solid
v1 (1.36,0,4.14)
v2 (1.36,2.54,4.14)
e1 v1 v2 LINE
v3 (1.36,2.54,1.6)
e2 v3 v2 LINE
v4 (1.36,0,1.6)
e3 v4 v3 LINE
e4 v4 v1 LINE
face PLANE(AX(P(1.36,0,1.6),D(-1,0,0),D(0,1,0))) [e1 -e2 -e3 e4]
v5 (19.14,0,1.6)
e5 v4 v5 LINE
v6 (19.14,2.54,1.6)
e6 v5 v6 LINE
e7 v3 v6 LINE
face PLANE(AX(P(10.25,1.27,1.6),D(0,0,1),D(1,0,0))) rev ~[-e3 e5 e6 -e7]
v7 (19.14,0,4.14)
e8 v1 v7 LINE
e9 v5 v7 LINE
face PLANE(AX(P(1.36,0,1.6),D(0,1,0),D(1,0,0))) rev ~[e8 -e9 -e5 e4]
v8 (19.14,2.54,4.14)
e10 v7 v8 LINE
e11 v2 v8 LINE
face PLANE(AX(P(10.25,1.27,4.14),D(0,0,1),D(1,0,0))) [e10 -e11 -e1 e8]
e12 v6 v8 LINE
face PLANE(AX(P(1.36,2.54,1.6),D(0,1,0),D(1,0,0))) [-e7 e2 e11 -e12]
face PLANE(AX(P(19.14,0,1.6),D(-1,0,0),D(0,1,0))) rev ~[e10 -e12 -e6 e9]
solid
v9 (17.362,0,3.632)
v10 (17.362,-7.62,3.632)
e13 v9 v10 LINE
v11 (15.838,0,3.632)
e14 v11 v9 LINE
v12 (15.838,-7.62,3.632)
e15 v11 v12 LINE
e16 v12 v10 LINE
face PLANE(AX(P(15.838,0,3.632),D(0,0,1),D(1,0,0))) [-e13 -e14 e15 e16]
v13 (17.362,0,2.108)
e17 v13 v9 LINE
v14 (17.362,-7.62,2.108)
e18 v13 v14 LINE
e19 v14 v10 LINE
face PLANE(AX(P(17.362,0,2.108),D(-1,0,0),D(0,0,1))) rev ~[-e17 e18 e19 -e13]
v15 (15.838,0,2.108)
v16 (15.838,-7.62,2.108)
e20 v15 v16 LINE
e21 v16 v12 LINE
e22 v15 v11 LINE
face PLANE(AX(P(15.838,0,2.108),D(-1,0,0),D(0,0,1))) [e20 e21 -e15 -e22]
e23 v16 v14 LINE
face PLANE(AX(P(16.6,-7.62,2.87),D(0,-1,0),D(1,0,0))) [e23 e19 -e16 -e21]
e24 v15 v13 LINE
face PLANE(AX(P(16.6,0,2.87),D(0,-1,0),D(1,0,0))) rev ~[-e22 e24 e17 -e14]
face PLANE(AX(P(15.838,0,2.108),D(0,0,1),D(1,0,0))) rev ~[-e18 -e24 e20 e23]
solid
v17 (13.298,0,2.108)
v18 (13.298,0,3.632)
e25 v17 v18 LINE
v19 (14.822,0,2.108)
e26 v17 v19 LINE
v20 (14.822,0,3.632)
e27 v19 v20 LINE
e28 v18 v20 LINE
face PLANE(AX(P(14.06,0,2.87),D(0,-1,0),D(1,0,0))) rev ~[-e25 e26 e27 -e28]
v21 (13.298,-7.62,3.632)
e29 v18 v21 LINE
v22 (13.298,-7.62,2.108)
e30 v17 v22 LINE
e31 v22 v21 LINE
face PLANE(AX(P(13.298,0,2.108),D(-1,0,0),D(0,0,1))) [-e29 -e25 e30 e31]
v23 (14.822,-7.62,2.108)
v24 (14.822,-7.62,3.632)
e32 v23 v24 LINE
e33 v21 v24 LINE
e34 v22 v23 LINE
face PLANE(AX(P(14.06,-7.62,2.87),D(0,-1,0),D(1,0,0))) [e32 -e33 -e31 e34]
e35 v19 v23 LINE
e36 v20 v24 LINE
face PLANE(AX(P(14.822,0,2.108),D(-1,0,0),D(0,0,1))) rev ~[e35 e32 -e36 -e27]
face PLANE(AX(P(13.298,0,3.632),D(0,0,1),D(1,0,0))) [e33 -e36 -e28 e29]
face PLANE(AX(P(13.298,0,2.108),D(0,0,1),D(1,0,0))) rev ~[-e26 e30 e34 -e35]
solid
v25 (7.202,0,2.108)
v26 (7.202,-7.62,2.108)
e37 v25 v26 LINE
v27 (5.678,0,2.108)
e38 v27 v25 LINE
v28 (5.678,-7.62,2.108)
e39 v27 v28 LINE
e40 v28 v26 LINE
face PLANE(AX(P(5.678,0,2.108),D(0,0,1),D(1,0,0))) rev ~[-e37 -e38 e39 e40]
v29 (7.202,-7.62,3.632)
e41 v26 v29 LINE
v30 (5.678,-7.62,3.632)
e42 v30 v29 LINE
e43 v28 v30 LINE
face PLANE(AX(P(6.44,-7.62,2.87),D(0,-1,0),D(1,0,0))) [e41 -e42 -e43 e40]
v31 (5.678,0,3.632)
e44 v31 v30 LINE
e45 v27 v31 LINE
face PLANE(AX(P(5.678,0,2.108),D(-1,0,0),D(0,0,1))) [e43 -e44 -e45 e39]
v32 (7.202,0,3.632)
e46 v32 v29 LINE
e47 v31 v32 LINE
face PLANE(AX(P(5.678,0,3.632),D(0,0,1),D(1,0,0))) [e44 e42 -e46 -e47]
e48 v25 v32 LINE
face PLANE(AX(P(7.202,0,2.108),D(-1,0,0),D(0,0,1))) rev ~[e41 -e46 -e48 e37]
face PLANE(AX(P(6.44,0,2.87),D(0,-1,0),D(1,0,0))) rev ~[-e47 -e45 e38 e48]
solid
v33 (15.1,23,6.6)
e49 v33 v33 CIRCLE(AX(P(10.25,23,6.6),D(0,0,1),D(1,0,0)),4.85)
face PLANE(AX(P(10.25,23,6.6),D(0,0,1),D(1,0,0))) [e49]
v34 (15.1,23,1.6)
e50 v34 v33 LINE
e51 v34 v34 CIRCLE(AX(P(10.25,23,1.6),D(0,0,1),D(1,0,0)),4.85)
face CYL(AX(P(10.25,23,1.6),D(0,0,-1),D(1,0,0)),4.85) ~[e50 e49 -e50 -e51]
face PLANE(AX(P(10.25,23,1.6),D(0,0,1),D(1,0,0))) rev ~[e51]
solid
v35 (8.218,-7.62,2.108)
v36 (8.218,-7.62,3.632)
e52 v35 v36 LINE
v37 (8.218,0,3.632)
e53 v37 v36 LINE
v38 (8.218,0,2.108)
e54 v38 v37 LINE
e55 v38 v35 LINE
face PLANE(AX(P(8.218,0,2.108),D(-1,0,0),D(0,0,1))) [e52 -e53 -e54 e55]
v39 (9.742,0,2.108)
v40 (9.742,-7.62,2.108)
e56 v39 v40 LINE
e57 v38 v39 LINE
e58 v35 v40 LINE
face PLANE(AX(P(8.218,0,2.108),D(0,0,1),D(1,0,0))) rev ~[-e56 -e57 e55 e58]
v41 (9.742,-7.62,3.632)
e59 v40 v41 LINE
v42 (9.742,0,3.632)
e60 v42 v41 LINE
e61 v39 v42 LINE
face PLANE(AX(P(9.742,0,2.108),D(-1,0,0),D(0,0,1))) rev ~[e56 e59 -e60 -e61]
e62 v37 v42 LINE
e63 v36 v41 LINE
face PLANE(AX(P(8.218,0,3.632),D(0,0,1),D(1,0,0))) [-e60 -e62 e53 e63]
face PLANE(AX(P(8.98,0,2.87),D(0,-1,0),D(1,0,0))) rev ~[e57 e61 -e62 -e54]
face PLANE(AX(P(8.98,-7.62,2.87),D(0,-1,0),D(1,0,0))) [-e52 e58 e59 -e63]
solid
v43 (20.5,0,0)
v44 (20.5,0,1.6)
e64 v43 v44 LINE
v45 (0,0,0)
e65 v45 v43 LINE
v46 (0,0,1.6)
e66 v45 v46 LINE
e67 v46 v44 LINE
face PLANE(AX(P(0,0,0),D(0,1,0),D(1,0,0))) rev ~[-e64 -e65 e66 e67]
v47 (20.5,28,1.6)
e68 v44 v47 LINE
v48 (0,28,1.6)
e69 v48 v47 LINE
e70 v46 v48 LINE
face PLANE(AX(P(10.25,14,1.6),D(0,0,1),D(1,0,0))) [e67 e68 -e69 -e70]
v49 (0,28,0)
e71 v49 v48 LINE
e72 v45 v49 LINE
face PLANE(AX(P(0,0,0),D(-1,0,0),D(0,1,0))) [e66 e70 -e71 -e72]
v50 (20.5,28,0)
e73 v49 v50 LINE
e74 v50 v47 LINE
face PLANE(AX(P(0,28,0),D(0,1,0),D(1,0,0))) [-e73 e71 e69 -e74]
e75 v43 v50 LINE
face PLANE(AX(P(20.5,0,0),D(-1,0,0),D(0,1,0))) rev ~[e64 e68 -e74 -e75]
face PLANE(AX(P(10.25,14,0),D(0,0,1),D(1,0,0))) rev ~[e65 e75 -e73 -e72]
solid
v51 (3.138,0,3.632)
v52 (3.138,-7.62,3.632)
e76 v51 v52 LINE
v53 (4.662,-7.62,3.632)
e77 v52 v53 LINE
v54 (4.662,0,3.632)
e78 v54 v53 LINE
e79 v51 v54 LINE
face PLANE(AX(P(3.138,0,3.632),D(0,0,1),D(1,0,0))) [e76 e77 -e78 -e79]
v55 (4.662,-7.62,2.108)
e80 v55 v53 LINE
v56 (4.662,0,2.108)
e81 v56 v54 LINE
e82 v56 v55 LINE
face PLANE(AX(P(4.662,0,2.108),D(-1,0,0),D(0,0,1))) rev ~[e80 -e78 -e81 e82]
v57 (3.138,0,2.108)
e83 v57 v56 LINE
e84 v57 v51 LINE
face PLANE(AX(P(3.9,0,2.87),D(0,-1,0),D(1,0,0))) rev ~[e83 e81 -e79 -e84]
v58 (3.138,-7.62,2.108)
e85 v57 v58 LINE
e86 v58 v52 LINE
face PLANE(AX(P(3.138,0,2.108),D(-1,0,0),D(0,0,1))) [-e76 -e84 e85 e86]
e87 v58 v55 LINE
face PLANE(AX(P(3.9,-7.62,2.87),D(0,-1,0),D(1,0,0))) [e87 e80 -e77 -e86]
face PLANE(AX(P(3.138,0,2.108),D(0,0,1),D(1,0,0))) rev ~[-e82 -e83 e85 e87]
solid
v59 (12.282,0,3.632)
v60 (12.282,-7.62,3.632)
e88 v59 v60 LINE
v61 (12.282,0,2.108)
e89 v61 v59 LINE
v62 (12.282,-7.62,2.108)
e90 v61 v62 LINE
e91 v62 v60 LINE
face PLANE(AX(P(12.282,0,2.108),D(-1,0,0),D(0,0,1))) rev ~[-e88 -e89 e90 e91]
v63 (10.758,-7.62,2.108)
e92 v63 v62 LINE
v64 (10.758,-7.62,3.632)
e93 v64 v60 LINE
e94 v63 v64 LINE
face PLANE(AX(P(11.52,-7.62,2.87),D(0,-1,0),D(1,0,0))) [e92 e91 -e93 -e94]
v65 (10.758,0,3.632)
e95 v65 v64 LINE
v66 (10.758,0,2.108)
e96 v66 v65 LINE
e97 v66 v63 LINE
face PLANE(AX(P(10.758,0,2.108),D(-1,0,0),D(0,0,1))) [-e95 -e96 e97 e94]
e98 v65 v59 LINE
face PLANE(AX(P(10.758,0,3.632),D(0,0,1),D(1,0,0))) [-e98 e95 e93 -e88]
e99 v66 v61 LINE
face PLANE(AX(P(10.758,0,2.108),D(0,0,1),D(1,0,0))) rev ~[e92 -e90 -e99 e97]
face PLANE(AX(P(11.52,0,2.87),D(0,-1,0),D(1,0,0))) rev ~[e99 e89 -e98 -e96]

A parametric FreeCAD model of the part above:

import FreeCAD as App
import Part
import Sketcher


def add_polygon(sketch, points):
    """Adds a closed chain of lines whose ends are joined by coincident constraints."""
    first, n = sketch.GeometryCount, len(points)
    for a, b in zip(points, points[1:] + points[:1]):
        sketch.addGeometry(Part.LineSegment(App.Vector(*a, 0), App.Vector(*b, 0)), False)
    for i in range(n):
        sketch.addConstraint(Sketcher.Constraint("Coincident", first + i, 2, first + (i + 1) % n, 1))

doc = App.newDocument("Part")
params = doc.addObject("Spreadsheet::Sheet", "Params")
for row, (alias, value) in enumerate([
    ("sketch1_height", "28 mm"),
    ("sketch1_width", "20.5 mm"),
    ("pad1_length", "1.6 mm"),
    ("sketch2_diameter", "9.7 mm"),
    ("pad2_length", "5 mm"),
    ("sketch3_width", "17.78 mm"),
    ("sketch3_height", "2.54 mm"),
    ("pad3_length", "2.54 mm"),
    ("pad4_length", "7.62 mm"),
    ("pad5_length", "7.62 mm"),
    ("pad6_length", "7.62 mm"),
    ("pad7_length", "7.62 mm"),
    ("pad8_length", "7.62 mm"),
    ("pad9_length", "7.62 mm"),
], start=1):
    params.set(f"A{row}", alias)
    params.set(f"B{row}", "=" + value)
    params.setAlias(f"B{row}", alias)

body = doc.addObject("PartDesign::Body", "Body")

sketch1 = doc.addObject("Sketcher::SketchObject", "Sketch")
body.addObject(sketch1)
sketch1.AttachmentSupport = (doc.XY_Plane, [""])
sketch1.MapMode = "FlatFace"
add_polygon(sketch1, [(0, 28), (0, 0), (20, 0), (20, 28)])
sketch1.addConstraint([
    Sketcher.Constraint("Vertical", 0),
    Sketcher.Constraint("Horizontal", 1),
    Sketcher.Constraint("Vertical", 2),
    Sketcher.Constraint("Horizontal", 3),
    Sketcher.Constraint("Coincident", 0, 2, -1, 1),
    Sketcher.Constraint("DistanceY", 0, 2, 0, 1, 28.0),
    Sketcher.Constraint("DistanceX", 1, 1, 1, 2, 20.5),
])
sketch1.setExpression("Constraints[9]", "Params.sketch1_height")
sketch1.setExpression("Constraints[10]", "Params.sketch1_width")
pad1 = doc.addObject("PartDesign::Pad", "Pad")
body.addObject(pad1)
pad1.Profile = sketch1
pad1.setExpression("Length", "Params.pad1_length")
body2 = doc.addObject("PartDesign::Body", "Body001")

sketch2 = doc.addObject("Sketcher::SketchObject", "Sketch001")
body2.addObject(sketch2)
sketch2.AttachmentSupport = (doc.getObject("XY_Plane001"), [""])
sketch2.MapMode = "FlatFace"
sketch2.AttachmentOffset = App.Placement(App.Vector(0, 0, 1.6), App.Rotation())
sketch2.addGeometry(Part.Circle(App.Vector(10.2, 23, 0), App.Vector(0, 0, 1), 4.8), False)
sketch2.addConstraint([
    Sketcher.Constraint("Diameter", 0, 9.7),
    Sketcher.Constraint("DistanceY", -1, 1, 0, 3, 23.0),
    Sketcher.Constraint("DistanceX", -1, 1, 0, 3, 10.25),
])
sketch2.setExpression("Constraints[0]", "Params.sketch2_diameter")
pad2 = doc.addObject("PartDesign::Pad", "Pad001")
body2.addObject(pad2)
pad2.Profile = sketch2
pad2.setExpression("Length", "Params.pad2_length")
body3 = doc.addObject("PartDesign::Body", "Body002")

sketch3 = doc.addObject("Sketcher::SketchObject", "Sketch002")
body3.addObject(sketch3)
sketch3.AttachmentSupport = (doc.getObject("XY_Plane002"), [""])
sketch3.MapMode = "FlatFace"
sketch3.AttachmentOffset = App.Placement(App.Vector(0, 0, 1.6), App.Rotation())
add_polygon(sketch3, [(1.4, 2.5), (1.4, 0), (19.1, 0), (19.1, 2.5)])
sketch3.addConstraint([
    Sketcher.Constraint("Vertical", 0),
    Sketcher.Constraint("Horizontal", 1),
    Sketcher.Constraint("Vertical", 2),
    Sketcher.Constraint("Horizontal", 3),
    Sketcher.Constraint("PointOnObject", 0, 2, -1),
    Sketcher.Constraint("DistanceX", 1, 1, 1, 2, 17.78),
    Sketcher.Constraint("DistanceY", 0, 2, 0, 1, 2.54),
    Sketcher.Constraint("DistanceX", -1, 1, 0, 2, 1.36),
])
sketch3.setExpression("Constraints[9]", "Params.sketch3_width")
sketch3.setExpression("Constraints[10]", "Params.sketch3_height")
pad3 = doc.addObject("PartDesign::Pad", "Pad002")
body3.addObject(pad3)
pad3.Profile = sketch3
pad3.setExpression("Length", "Params.pad3_length")
body4 = doc.addObject("PartDesign::Body", "Body003")

sketch4 = doc.addObject("Sketcher::SketchObject", "Sketch003")
body4.addObject(sketch4)
sketch4.AttachmentSupport = (doc.getObject("XZ_Plane003"), [""])
sketch4.MapMode = "FlatFace"
add_polygon(sketch4, [(3.1, 3.6), (3.1, 2.1), (4.7, 2.1), (4.7, 3.6)])
sketch4.addConstraint([
    Sketcher.Constraint("Vertical", 0),
    Sketcher.Constraint("Horizontal", 1),
    Sketcher.Constraint("Vertical", 2),
    Sketcher.Constraint("Horizontal", 3),
    Sketcher.Constraint("Equal", 3, 0),
    Sketcher.Constraint("DistanceX", 1, 1, 1, 2, 1.524),
    Sketcher.Constraint("DistanceX", -1, 1, 0, 2, 3.138),
    Sketcher.Constraint("DistanceY", -1, 1, 0, 2, 2.108),
])
pad4 = doc.addObject("PartDesign::Pad", "Pad003")
body4.addObject(pad4)
pad4.Profile = sketch4
pad4.setExpression("Length", "Params.pad4_length")
body5 = doc.addObject("PartDesign::Body", "Body004")

sketch5 = doc.addObject("Sketcher::SketchObject", "Sketch004")
body5.addObject(sketch5)
sketch5.AttachmentSupport = (doc.getObject("XZ_Plane004"), [""])
sketch5.MapMode = "FlatFace"
add_polygon(sketch5, [(5.7, 3.6), (5.7, 2.1), (7.2, 2.1), (7.2, 3.6)])
sketch5.addConstraint([
    Sketcher.Constraint("Vertical", 0),
    Sketcher.Constraint("Horizontal", 1),
    Sketcher.Constraint("Vertical", 2),
    Sketcher.Constraint("Horizontal", 3),
    Sketcher.Constraint("Equal", 3, 0),
    Sketcher.Constraint("DistanceX", 1, 1, 1, 2, 1.524),
    Sketcher.Constraint("DistanceX", -1, 1, 0, 2, 5.678),
    Sketcher.Constraint("DistanceY", -1, 1, 0, 2, 2.108),
])
pad5 = doc.addObject("PartDesign::Pad", "Pad004")
body5.addObject(pad5)
pad5.Profile = sketch5
pad5.setExpression("Length", "Params.pad5_length")
body6 = doc.addObject("PartDesign::Body", "Body005")

sketch6 = doc.addObject("Sketcher::SketchObject", "Sketch005")
body6.addObject(sketch6)
sketch6.AttachmentSupport = (doc.getObject("XZ_Plane005"), [""])
sketch6.MapMode = "FlatFace"
add_polygon(sketch6, [(8.2, 3.6), (8.2, 2.1), (9.7, 2.1), (9.7, 3.6)])
sketch6.addConstraint([
    Sketcher.Constraint("Vertical", 0),
    Sketcher.Constraint("Horizontal", 1),
    Sketcher.Constraint("Vertical", 2),
    Sketcher.Constraint("Horizontal", 3),
    Sketcher.Constraint("Equal", 3, 0),
    Sketcher.Constraint("DistanceX", 1, 1, 1, 2, 1.524),
    Sketcher.Constraint("DistanceX", -1, 1, 0, 2, 8.218),
    Sketcher.Constraint("DistanceY", -1, 1, 0, 2, 2.108),
])
pad6 = doc.addObject("PartDesign::Pad", "Pad005")
body6.addObject(pad6)
pad6.Profile = sketch6
pad6.setExpression("Length", "Params.pad6_length")
body7 = doc.addObject("PartDesign::Body", "Body006")

sketch7 = doc.addObject("Sketcher::SketchObject", "Sketch006")
body7.addObject(sketch7)
sketch7.AttachmentSupport = (doc.getObject("XZ_Plane006"), [""])
sketch7.MapMode = "FlatFace"
add_polygon(sketch7, [(10.8, 3.6), (10.8, 2.1), (12.3, 2.1), (12.3, 3.6)])
sketch7.addConstraint([
    Sketcher.Constraint("Vertical", 0),
    Sketcher.Constraint("Horizontal", 1),
    Sketcher.Constraint("Vertical", 2),
    Sketcher.Constraint("Horizontal", 3),
    Sketcher.Constraint("Equal", 3, 0),
    Sketcher.Constraint("DistanceX", 1, 1, 1, 2, 1.524),
    Sketcher.Constraint("DistanceX", -1, 1, 0, 2, 10.758),
    Sketcher.Constraint("DistanceY", -1, 1, 0, 2, 2.108),
])
pad7 = doc.addObject("PartDesign::Pad", "Pad006")
body7.addObject(pad7)
pad7.Profile = sketch7
pad7.setExpression("Length", "Params.pad7_length")
body8 = doc.addObject("PartDesign::Body", "Body007")

sketch8 = doc.addObject("Sketcher::SketchObject", "Sketch007")
body8.addObject(sketch8)
sketch8.AttachmentSupport = (doc.getObject("XZ_Plane007"), [""])
sketch8.MapMode = "FlatFace"
add_polygon(sketch8, [(13.3, 3.6), (13.3, 2.1), (14.8, 2.1), (14.8, 3.6)])
sketch8.addConstraint([
    Sketcher.Constraint("Vertical", 0),
    Sketcher.Constraint("Horizontal", 1),
    Sketcher.Constraint("Vertical", 2),
    Sketcher.Constraint("Horizontal", 3),
    Sketcher.Constraint("Equal", 3, 0),
    Sketcher.Constraint("DistanceX", 1, 1, 1, 2, 1.524),
    Sketcher.Constraint("DistanceX", -1, 1, 0, 2, 13.298),
    Sketcher.Constraint("DistanceY", -1, 1, 0, 2, 2.108),
])
pad8 = doc.addObject("PartDesign::Pad", "Pad007")
body8.addObject(pad8)
pad8.Profile = sketch8
pad8.setExpression("Length", "Params.pad8_length")
body9 = doc.addObject("PartDesign::Body", "Body008")

sketch9 = doc.addObject("Sketcher::SketchObject", "Sketch008")
body9.addObject(sketch9)
sketch9.AttachmentSupport = (doc.getObject("XZ_Plane008"), [""])
sketch9.MapMode = "FlatFace"
add_polygon(sketch9, [(15.8, 3.6), (15.8, 2.1), (17.4, 2.1), (17.4, 3.6)])
sketch9.addConstraint([
    Sketcher.Constraint("Vertical", 0),
    Sketcher.Constraint("Horizontal", 1),
    Sketcher.Constraint("Vertical", 2),
    Sketcher.Constraint("Horizontal", 3),
    Sketcher.Constraint("Equal", 3, 0),
    Sketcher.Constraint("DistanceX", 1, 1, 1, 2, 1.524),
    Sketcher.Constraint("DistanceX", -1, 1, 0, 2, 15.838),
    Sketcher.Constraint("DistanceY", -1, 1, 0, 2, 2.108),
])
pad9 = doc.addObject("PartDesign::Pad", "Pad008")
body9.addObject(pad9)
pad9.Profile = sketch9
pad9.setExpression("Length", "Params.pad9_length")

doc.recompute()
